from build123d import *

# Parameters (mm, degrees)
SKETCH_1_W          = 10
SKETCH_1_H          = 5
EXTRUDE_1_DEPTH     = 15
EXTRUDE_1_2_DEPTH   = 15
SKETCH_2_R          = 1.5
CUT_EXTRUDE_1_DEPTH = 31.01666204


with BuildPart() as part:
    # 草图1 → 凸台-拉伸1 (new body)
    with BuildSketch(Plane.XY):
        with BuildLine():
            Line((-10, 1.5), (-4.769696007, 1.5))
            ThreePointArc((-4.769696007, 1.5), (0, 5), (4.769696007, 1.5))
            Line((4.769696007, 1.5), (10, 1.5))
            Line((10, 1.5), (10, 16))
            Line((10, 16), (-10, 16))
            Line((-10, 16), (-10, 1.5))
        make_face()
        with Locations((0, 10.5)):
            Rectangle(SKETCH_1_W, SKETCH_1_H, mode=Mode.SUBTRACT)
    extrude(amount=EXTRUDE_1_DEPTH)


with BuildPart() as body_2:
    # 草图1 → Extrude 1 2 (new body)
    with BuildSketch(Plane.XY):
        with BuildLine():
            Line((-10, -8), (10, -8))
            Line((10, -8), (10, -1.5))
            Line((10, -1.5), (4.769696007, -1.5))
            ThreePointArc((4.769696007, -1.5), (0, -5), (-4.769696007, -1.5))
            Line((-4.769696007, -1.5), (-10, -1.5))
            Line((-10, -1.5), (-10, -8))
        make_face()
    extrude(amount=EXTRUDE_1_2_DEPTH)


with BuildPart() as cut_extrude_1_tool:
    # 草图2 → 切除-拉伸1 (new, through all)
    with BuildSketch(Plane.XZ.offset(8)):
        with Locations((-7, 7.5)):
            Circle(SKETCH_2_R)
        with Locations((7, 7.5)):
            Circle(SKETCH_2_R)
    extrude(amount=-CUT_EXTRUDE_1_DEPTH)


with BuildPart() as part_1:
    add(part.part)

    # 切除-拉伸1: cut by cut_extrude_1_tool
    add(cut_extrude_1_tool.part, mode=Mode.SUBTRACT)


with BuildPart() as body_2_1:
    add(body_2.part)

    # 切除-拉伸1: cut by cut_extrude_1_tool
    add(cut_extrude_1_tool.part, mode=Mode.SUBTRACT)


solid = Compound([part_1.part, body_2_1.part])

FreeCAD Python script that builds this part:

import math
import FreeCAD as App
import Part
import Sketcher

doc = App.newDocument("Part")
body = doc.addObject("PartDesign::Body", "Body")

sketch1 = body.newObject("Sketcher::SketchObject", "Sketch")
sketch1.AttachmentSupport = (doc.getObject("XY_Plane"), [""])
sketch1.MapMode = "FlatFace"
sketch1.addGeometry([
    Part.LineSegment(App.Vector(-10, 2, 0), App.Vector(-5, 2, 0)),
    Part.ArcOfCircle(Part.Circle(App.Vector(0, 0, 0), App.Vector(0, 0, 1), 5), math.radians(17), math.radians(163)),
    Part.LineSegment(App.Vector(5, 2, 0), App.Vector(10, 2, 0)),
    Part.LineSegment(App.Vector(10, 2, 0), App.Vector(10, 16, 0)),
    Part.LineSegment(App.Vector(10, 16, 0), App.Vector(-10, 16, 0)),
    Part.LineSegment(App.Vector(-10, 16, 0), App.Vector(-10, 2, 0)),
    Part.LineSegment(App.Vector(5, 8, 0), App.Vector(-5, 8, 0)),
    Part.LineSegment(App.Vector(-5, 8, 0), App.Vector(-5, 13, 0)),
    Part.LineSegment(App.Vector(-5, 13, 0), App.Vector(5, 13, 0)),
    Part.LineSegment(App.Vector(5, 13, 0), App.Vector(5, 8, 0)),
], False)
sketch1.addConstraint([
    Sketcher.Constraint("Coincident", 0, 2, 1, 2),
    Sketcher.Constraint("Coincident", 1, 1, 2, 1),
    Sketcher.Constraint("Coincident", 2, 2, 3, 1),
    Sketcher.Constraint("Coincident", 3, 2, 4, 1),
    Sketcher.Constraint("Coincident", 4, 2, 5, 1),
    Sketcher.Constraint("Coincident", 5, 2, 0, 1),
    Sketcher.Constraint("Coincident", 6, 2, 7, 1),
    Sketcher.Constraint("Coincident", 7, 2, 8, 1),
    Sketcher.Constraint("Coincident", 8, 2, 9, 1),
    Sketcher.Constraint("Coincident", 9, 2, 6, 1),
    Sketcher.Constraint("Horizontal", 0),
    Sketcher.Constraint("Horizontal", 2),
    Sketcher.Constraint("Vertical", 3),
    Sketcher.Constraint("Horizontal", 4),
    Sketcher.Constraint("Vertical", 5),
    Sketcher.Constraint("Horizontal", 6),
    Sketcher.Constraint("Vertical", 7),
    Sketcher.Constraint("Horizontal", 8),
    Sketcher.Constraint("Vertical", 9),
    Sketcher.Constraint("Coincident", 1, 3, -1, 1),
    Sketcher.Constraint("Symmetric", 2, 2, 5, 2, -2),
    Sketcher.Constraint("Radius", 1, 5.0),
    Sketcher.Constraint("DistanceX", 4, 2, 4, 1, 20.0),
    Sketcher.Constraint("DistanceX", 6, 2, 6, 1, 10.0),
    Sketcher.Constraint("DistanceY", 7, 1, 7, 2, 5.0),
    Sketcher.Constraint("DistanceY", 3, 1, 3, 2, 14.5),
    Sketcher.Constraint("DistanceY", -1, 1, 3, 2, 16.0),
    Sketcher.Constraint("DistanceX", 6, 2, -1, 1, 5.0),
    Sketcher.Constraint("DistanceY", -1, 1, 6, 2, 8.0),
])
pad1 = body.newObject("PartDesign::Pad", "Pad")
pad1.Profile = sketch1
pad1.Length = 15
body2 = doc.addObject("PartDesign::Body", "Body001")

sketch2 = body2.newObject("Sketcher::SketchObject", "Sketch001")
sketch2.AttachmentSupport = (doc.getObject("XY_Plane001"), [""])
sketch2.MapMode = "FlatFace"
sketch2.addGeometry([
    Part.LineSegment(App.Vector(-10, -8, 0), App.Vector(10, -8, 0)),
    Part.LineSegment(App.Vector(10, -8, 0), App.Vector(10, -2, 0)),
    Part.LineSegment(App.Vector(10, -2, 0), App.Vector(5, -2, 0)),
    Part.ArcOfCircle(Part.Circle(App.Vector(0, 0, 0), App.Vector(0, 0, 1), 5), math.radians(-163), math.radians(-17)),
    Part.LineSegment(App.Vector(-5, -2, 0), App.Vector(-10, -2, 0)),
    Part.LineSegment(App.Vector(-10, -2, 0), App.Vector(-10, -8, 0)),
], False)
sketch2.addConstraint([
    Sketcher.Constraint("Coincident", 0, 2, 1, 1),
    Sketcher.Constraint("Coincident", 1, 2, 2, 1),
    Sketcher.Constraint("Coincident", 2, 2, 3, 2),
    Sketcher.Constraint("Coincident", 3, 1, 4, 1),
    Sketcher.Constraint("Coincident", 4, 2, 5, 1),
    Sketcher.Constraint("Coincident", 5, 2, 0, 1),
    Sketcher.Constraint("Horizontal", 0),
    Sketcher.Constraint("Vertical", 1),
    Sketcher.Constraint("Horizontal", 2),
    Sketcher.Constraint("Horizontal", 4),
    Sketcher.Constraint("Vertical", 5),
    Sketcher.Constraint("Coincident", 3, 3, -1, 1),
    Sketcher.Constraint("Symmetric", 1, 2, 4, 2, -2),
    Sketcher.Constraint("Radius", 3, 5.0),
    Sketcher.Constraint("DistanceX", 0, 1, 0, 2, 20.0),
    Sketcher.Constraint("DistanceY", 1, 1, 1, 2, 6.5),
    Sketcher.Constraint("DistanceY", 0, 2, -1, 1, 8.0),
])
pad2 = body2.newObject("PartDesign::Pad", "Pad001")
pad2.Profile = sketch2
pad2.Length = 15
body3 = doc.addObject("PartDesign::Body", "Body002")
body3.AllowCompound = True

sketch3 = body3.newObject("Sketcher::SketchObject", "Sketch002")
sketch3.AttachmentSupport = (doc.getObject("XZ_Plane002"), [""])
sketch3.MapMode = "FlatFace"
sketch3.AttachmentOffset = App.Placement(App.Vector(0, 0, 8), App.Rotation())
sketch3.addGeometry([
    Part.Circle(App.Vector(-7, 7.5, 0), App.Vector(0, 0, 1), 1.5),
    Part.Circle(App.Vector(7, 7.5, 0), App.Vector(0, 0, 1), 1.5),
], False)
sketch3.addConstraint([
    Sketcher.Constraint("Equal", 0, 1),
    Sketcher.Constraint("Symmetric", 0, 3, 1, 3, -2),
    Sketcher.Constraint("Diameter", 0, 3.0),
    Sketcher.Constraint("DistanceX", 0, 3, -1, 1, 7.0),
    Sketcher.Constraint("DistanceY", -1, 1, 0, 3, 7.5),
])
pad3 = body3.newObject("PartDesign::Pad", "Pad002")
pad3.Profile = sketch3
pad3.Length = 31.016662
pad3.Reversed = True
doc.recompute()

body4 = doc.addObject("PartDesign::Body", "Body003")
body4.BaseFeature = body3
boolean = body.newObject("PartDesign::Boolean", "Boolean")
boolean.Type = "Cut"
boolean.addObjects([body4])
doc.recompute()

boolean2 = body2.newObject("PartDesign::Boolean", "Boolean001")
boolean2.Type = "Cut"
boolean2.addObjects([body3])

doc.recompute()
